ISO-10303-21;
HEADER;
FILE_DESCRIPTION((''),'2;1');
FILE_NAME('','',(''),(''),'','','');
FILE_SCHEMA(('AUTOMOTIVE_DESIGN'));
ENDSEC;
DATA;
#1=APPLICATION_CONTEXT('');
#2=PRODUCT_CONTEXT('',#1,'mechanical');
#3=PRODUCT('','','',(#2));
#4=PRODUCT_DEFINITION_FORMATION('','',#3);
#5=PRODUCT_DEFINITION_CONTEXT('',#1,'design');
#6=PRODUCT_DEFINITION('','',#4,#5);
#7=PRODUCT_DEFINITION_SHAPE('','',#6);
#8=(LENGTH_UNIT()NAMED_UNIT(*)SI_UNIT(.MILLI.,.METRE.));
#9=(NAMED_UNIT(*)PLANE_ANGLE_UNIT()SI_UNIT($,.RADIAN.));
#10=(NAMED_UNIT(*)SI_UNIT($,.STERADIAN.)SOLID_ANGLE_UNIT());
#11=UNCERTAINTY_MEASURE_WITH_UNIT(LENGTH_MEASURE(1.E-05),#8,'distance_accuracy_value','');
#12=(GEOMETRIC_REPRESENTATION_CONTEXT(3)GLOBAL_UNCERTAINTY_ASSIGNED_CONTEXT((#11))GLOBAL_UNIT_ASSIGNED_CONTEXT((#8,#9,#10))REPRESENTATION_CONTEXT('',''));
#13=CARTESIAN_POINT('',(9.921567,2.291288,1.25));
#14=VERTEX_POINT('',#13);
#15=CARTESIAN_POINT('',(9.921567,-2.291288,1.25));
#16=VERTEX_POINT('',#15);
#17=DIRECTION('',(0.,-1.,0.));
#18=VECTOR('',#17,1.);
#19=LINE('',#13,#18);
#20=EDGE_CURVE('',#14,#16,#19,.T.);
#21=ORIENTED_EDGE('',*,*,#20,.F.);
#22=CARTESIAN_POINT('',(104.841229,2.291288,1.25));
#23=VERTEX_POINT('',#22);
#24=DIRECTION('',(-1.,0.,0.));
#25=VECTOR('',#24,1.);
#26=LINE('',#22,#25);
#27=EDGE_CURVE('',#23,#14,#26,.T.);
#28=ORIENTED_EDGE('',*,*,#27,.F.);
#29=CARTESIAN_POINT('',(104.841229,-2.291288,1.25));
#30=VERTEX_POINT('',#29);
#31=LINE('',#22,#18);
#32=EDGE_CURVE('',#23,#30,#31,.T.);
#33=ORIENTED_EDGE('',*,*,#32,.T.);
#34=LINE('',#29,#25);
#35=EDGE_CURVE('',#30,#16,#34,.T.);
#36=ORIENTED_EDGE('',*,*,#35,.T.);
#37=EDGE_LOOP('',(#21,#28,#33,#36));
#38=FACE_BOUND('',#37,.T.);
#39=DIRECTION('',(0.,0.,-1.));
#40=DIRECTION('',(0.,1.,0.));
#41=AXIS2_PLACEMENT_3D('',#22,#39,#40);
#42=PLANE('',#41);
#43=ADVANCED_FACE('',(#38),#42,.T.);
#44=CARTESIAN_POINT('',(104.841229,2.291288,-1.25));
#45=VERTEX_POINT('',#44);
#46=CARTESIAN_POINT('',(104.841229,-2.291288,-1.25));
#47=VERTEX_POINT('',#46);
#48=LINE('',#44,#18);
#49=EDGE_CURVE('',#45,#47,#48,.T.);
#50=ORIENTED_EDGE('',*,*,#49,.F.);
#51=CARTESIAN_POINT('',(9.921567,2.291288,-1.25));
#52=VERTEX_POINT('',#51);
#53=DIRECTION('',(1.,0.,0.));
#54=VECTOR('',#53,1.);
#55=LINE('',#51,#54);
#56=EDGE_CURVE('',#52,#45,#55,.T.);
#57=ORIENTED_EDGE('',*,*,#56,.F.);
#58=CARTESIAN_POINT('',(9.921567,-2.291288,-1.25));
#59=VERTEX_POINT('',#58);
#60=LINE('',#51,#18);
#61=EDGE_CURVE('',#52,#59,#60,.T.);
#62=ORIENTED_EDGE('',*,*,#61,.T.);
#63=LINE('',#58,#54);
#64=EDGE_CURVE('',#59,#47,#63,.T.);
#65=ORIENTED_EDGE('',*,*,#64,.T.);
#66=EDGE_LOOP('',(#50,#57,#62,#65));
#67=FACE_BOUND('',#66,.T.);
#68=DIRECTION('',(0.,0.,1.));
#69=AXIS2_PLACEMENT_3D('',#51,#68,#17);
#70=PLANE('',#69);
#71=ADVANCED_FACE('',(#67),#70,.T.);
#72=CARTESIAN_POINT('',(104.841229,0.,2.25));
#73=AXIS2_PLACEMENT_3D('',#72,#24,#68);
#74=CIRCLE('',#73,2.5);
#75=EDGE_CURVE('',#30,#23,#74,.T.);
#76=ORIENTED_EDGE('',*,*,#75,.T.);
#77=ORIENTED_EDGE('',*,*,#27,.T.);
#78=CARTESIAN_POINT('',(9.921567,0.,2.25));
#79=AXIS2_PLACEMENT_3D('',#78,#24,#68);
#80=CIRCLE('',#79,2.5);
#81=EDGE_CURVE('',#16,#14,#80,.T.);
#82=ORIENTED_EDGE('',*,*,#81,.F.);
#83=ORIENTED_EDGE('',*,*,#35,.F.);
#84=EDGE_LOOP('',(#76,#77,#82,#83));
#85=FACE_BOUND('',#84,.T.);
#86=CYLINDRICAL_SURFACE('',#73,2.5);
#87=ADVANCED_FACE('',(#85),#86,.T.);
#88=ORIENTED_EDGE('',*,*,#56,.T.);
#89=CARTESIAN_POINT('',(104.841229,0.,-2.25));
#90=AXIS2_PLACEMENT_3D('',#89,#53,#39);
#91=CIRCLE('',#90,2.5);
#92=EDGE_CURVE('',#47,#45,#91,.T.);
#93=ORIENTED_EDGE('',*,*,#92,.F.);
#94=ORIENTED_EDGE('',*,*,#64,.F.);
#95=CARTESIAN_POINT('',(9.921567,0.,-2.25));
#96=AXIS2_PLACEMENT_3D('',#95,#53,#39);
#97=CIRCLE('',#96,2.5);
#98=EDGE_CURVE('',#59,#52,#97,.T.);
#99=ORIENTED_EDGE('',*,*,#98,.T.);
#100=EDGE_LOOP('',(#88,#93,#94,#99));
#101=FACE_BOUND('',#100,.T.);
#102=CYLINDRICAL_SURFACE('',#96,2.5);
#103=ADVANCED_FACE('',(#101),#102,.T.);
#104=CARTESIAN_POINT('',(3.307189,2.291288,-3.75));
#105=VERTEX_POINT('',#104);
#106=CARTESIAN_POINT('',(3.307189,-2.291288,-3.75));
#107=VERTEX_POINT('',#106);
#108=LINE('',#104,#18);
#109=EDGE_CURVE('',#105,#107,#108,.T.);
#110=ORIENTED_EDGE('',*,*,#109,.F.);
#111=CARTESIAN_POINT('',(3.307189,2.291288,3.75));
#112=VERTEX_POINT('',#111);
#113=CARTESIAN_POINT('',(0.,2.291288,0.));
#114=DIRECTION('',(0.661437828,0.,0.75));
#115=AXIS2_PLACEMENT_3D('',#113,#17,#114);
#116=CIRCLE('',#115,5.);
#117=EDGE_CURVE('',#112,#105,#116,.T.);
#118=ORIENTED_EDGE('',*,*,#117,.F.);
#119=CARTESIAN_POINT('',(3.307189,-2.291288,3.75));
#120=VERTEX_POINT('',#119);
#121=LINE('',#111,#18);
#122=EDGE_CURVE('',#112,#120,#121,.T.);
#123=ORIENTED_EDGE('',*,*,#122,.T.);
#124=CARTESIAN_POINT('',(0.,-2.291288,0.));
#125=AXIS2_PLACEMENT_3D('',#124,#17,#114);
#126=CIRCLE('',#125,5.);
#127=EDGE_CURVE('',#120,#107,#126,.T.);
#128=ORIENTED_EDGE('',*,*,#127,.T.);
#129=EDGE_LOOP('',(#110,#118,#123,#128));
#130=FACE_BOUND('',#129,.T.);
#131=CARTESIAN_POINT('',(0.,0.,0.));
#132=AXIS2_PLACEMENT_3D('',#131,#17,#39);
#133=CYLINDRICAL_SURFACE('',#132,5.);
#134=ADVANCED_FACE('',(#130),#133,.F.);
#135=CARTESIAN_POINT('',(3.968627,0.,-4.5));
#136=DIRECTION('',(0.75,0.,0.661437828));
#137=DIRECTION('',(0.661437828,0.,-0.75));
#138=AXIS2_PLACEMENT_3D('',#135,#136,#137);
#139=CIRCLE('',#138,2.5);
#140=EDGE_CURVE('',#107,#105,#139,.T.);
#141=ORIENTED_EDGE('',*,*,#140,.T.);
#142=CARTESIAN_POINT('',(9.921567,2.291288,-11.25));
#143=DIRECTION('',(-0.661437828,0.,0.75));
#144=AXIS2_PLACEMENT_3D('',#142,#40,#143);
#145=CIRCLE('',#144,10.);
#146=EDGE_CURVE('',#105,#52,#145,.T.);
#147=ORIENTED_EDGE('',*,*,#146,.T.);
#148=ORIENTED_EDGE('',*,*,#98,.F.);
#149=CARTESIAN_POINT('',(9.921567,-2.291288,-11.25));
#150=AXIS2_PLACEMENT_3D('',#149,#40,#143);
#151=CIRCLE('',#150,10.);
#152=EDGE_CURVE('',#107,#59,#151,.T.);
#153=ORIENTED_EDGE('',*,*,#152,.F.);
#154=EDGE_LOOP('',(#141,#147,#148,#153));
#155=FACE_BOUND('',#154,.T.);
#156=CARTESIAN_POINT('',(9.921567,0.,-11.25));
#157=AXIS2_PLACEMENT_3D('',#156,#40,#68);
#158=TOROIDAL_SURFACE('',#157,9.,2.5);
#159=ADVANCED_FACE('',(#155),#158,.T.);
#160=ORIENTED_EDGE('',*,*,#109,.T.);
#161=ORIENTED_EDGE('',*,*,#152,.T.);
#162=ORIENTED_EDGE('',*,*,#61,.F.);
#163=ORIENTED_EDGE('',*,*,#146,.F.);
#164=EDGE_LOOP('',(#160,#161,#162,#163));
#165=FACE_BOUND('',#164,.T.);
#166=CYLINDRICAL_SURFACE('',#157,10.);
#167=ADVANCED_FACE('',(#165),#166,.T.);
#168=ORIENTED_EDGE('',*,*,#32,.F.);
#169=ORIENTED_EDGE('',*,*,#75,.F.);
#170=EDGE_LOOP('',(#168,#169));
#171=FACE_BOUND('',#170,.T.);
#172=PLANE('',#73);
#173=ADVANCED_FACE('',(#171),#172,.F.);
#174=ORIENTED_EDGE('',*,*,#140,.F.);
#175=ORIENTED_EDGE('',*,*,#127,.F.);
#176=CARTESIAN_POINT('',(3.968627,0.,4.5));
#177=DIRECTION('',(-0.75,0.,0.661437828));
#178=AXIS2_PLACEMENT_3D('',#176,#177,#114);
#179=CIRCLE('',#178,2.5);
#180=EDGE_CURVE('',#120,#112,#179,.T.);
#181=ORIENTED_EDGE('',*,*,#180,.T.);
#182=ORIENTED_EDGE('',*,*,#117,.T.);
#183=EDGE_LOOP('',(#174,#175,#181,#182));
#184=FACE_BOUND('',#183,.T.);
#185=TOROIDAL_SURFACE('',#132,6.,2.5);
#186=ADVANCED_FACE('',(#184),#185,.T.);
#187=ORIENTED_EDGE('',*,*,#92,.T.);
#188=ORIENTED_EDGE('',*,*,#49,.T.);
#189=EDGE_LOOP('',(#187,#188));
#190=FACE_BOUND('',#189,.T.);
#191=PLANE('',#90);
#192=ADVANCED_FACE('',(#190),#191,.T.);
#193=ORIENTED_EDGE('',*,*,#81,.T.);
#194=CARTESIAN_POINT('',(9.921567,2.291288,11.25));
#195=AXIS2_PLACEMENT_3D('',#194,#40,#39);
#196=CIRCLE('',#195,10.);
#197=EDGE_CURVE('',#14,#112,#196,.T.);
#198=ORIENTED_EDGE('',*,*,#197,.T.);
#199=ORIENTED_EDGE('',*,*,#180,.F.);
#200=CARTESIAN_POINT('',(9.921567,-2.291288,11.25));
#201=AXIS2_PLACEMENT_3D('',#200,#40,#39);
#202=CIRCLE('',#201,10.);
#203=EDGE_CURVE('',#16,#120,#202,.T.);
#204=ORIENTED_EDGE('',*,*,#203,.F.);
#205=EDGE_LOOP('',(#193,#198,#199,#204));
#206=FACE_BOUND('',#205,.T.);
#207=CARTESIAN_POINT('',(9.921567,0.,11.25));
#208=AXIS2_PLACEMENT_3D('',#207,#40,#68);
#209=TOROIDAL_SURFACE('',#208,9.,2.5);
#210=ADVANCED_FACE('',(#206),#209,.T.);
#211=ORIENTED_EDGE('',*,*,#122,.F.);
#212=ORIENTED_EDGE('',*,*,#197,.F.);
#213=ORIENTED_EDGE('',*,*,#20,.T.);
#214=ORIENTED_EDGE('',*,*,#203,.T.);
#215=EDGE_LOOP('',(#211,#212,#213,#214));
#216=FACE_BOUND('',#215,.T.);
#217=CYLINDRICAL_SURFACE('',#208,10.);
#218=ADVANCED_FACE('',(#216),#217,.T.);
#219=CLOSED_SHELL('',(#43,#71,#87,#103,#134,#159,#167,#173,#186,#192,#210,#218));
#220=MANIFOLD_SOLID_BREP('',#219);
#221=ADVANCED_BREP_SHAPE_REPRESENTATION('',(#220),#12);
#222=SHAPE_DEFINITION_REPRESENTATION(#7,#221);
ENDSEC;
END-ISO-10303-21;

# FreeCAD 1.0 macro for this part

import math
import FreeCAD as App
import Part
import Sketcher
Q = App.Units.Quantity

doc = App.newDocument("Part")
params = doc.addObject("Spreadsheet::Sheet", "Params")
for row, (alias, value) in enumerate([
    ("sketch1_radius", "2.5 mm"),
    ("sketch2_radius", "10 mm"),
    ("sketch2_radius2", "5 mm"),
], start=1):
    params.set(f"A{row}", alias)
    params.set(f"B{row}", "=" + value)
    params.setAlias(f"B{row}", alias)

body = doc.addObject("PartDesign::Body", "Body")

# Sketch on YZ plane
sketch1 = body.newObject("Sketcher::SketchObject", "Sketch")
sketch1.AttachmentSupport = (doc.getObject("YZ_Plane"), [""])
sketch1.MapMode = "FlatFace"
sketch1.AttachmentOffset = App.Placement(App.Vector(0, 0, 104.841229), App.Rotation())
sketch1.addGeometry([
    Part.LineSegment(App.Vector(2.291288, 1.25, 0), App.Vector(-2.291288, 1.25, 0)),
    Part.ArcOfCircle(Part.Circle(App.Vector(0, 2.25, 0), App.Vector(0, 0, 1), 2.5), math.radians(-23.578178), math.radians(203.578178)),
], False)
sketch1.addConstraint([
    Sketcher.Constraint("Coincident", 0, 1, 1, 1),
    Sketcher.Constraint("Coincident", 1, 2, 0, 2),
    Sketcher.Constraint("Horizontal", 0),
    Sketcher.Constraint("PointOnObject", 1, 3, -2),
    Sketcher.Constraint("Radius", 1, Q("2.5 mm")),
    Sketcher.Constraint("DistanceY", 0, 1, 1, 3, Q("1 mm")),
    Sketcher.Constraint("DistanceY", -1, 1, 1, 3, Q("2.25 mm")),
])
sketch1.setExpression("Constraints[4]", "Params.sketch1_radius")

# Sketch on XZ plane
sketch2 = body.newObject("Sketcher::SketchObject", "Sketch001")
sketch2.AttachmentSupport = (doc.getObject("XZ_Plane"), [""])
sketch2.MapMode = "FlatFace"
sketch2.addGeometry([
    Part.LineSegment(App.Vector(104.841229, -1.25, 0), App.Vector(9.921567, -1.25, 0)),  # 0
    Part.ArcOfCircle(Part.Circle(App.Vector(9.921567, -11.25, 0), App.Vector(0, 0, 1), 10), math.radians(90), math.radians(131.409622)),  # 1
    Part.ArcOfCircle(Part.Circle(App.Vector(0, 0, 0), App.Vector(0, 0, 1), 5), math.radians(48.590378), math.radians(311.409622)),  # 2
    Part.ArcOfCircle(Part.Circle(App.Vector(9.921567, 11.25, 0), App.Vector(0, 0, 1), 10), math.radians(-131.409622), math.radians(-90)),  # 3
    Part.LineSegment(App.Vector(9.921567, 1.25, 0), App.Vector(104.841229, 1.25, 0)),  # 4
], False)
sketch2.addConstraint([
    Sketcher.Constraint("Tangent", 0, 2, 1, 1),
    Sketcher.Constraint("Tangent", 1, 2, 2, 2),
    Sketcher.Constraint("Tangent", 2, 1, 3, 1),
    Sketcher.Constraint("Tangent", 3, 2, 4, 1),
    Sketcher.Constraint("Horizontal", 0),
    Sketcher.Constraint("Horizontal", 4),
    Sketcher.Constraint("Coincident", 2, 3, -1, 1),
    Sketcher.Constraint("Equal", 1, 3),
    Sketcher.Constraint("Symmetric", 0, 1, 4, 2, -1),
    Sketcher.Constraint("Radius", 1, Q("10 mm")),
    Sketcher.Constraint("Radius", 2, Q("5 mm")),
    Sketcher.Constraint("DistanceY", 1, 2, 3, 3, Q("15 mm")),
    Sketcher.Constraint("DistanceX", 0, 2, 0, 1, Q("94.919662 mm")),
])
sketch2.setExpression("Constraints[9]", "Params.sketch2_radius")
sketch2.setExpression("Constraints[10]", "Params.sketch2_radius2")
doc.recompute()

additivepipe = body.newObject("PartDesign::AdditivePipe", "AdditivePipe")
additivepipe.Profile = sketch1
additivepipe.Spine = (sketch2, ["Edge1", "Edge2", "Edge3", "Edge4", "Edge5"])

doc.recompute()
